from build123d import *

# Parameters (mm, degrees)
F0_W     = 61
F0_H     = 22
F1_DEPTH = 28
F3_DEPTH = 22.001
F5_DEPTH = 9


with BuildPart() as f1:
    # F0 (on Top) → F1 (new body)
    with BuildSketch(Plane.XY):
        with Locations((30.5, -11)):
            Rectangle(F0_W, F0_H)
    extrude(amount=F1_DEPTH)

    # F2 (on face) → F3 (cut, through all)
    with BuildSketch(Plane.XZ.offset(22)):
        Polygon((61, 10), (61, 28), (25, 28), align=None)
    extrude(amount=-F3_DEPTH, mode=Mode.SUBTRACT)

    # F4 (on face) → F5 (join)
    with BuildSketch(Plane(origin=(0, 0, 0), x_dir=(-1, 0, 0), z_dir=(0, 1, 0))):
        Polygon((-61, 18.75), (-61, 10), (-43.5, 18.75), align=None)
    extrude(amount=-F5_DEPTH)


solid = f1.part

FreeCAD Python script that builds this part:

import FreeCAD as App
import Part
import Sketcher

doc = App.newDocument("Part")
body = doc.addObject("PartDesign::Body", "Body")

sketch1 = doc.addObject("Sketcher::SketchObject", "Sketch")
body.addObject(sketch1)
sketch1.AttachmentSupport = (doc.XY_Plane, [""])
sketch1.MapMode = "FlatFace"
sketch1.addGeometry([
    Part.LineSegment(App.Vector(0, 0, 0), App.Vector(0, -22, 0)),
    Part.LineSegment(App.Vector(0, -22, 0), App.Vector(61, -22, 0)),
    Part.LineSegment(App.Vector(61, -22, 0), App.Vector(61, 0, 0)),
    Part.LineSegment(App.Vector(61, 0, 0), App.Vector(0, 0, 0)),
], False)
sketch1.addConstraint([
    Sketcher.Constraint("Coincident", 0, 2, 1, 1),
    Sketcher.Constraint("Coincident", 1, 2, 2, 1),
    Sketcher.Constraint("Coincident", 2, 2, 3, 1),
    Sketcher.Constraint("Coincident", 3, 2, 0, 1),
    Sketcher.Constraint("Vertical", 0),
    Sketcher.Constraint("Horizontal", 1),
    Sketcher.Constraint("Vertical", 2),
    Sketcher.Constraint("Horizontal", 3),
    Sketcher.Constraint("Coincident", 3, 2, -1, 1),
    Sketcher.Constraint("DistanceX", 1, 1, 1, 2, 61.0),
    Sketcher.Constraint("DistanceY", 0, 2, 0, 1, 22.0),
])
pad1 = doc.addObject("PartDesign::Pad", "Pad")
body.addObject(pad1)
pad1.Profile = sketch1
pad1.Length = 28

sketch2 = doc.addObject("Sketcher::SketchObject", "Sketch001")
body.addObject(sketch2)
sketch2.AttachmentSupport = (doc.XZ_Plane, [""])
sketch2.MapMode = "FlatFace"
sketch2.AttachmentOffset = App.Placement(App.Vector(0, 0, 22), App.Rotation())
sketch2.addGeometry([
    Part.LineSegment(App.Vector(61, 10, 0), App.Vector(61, 28, 0)),
    Part.LineSegment(App.Vector(61, 28, 0), App.Vector(25, 28, 0)),
    Part.LineSegment(App.Vector(25, 28, 0), App.Vector(61, 10, 0)),
], False)
sketch2.addConstraint([
    Sketcher.Constraint("Coincident", 0, 2, 1, 1),
    Sketcher.Constraint("Coincident", 1, 2, 2, 1),
    Sketcher.Constraint("Coincident", 2, 2, 0, 1),
    Sketcher.Constraint("Vertical", 0),
    Sketcher.Constraint("Horizontal", 1),
    Sketcher.Constraint("DistanceX", 1, 2, 1, 1, 36.0),
    Sketcher.Constraint("DistanceY", 0, 1, 0, 2, 18.0),
    Sketcher.Constraint("DistanceX", -1, 1, 0, 2, 61.0),
    Sketcher.Constraint("DistanceY", -1, 1, 0, 2, 28.0),
])
pocket1 = doc.addObject("PartDesign::Pocket", "Pocket")
body.addObject(pocket1)
pocket1.Profile = sketch2
pocket1.Type = "ThroughAll"

sketch3 = doc.addObject("Sketcher::SketchObject", "Sketch002")
body.addObject(sketch3)
sketch3.AttachmentSupport = (doc.XZ_Plane, [""])
sketch3.MapMode = "FlatFace"
sketch3.addGeometry([
    Part.LineSegment(App.Vector(61, 19, 0), App.Vector(61, 10, 0)),
    Part.LineSegment(App.Vector(61, 10, 0), App.Vector(44, 19, 0)),
    Part.LineSegment(App.Vector(44, 19, 0), App.Vector(61, 19, 0)),
], False)
sketch3.addConstraint([
    Sketcher.Constraint("Coincident", 0, 2, 1, 1),
    Sketcher.Constraint("Coincident", 1, 2, 2, 1),
    Sketcher.Constraint("Coincident", 2, 2, 0, 1),
    Sketcher.Constraint("Vertical", 0),
    Sketcher.Constraint("Horizontal", 2),
    Sketcher.Constraint("DistanceX", 2, 1, 2, 2, 17.5),
    Sketcher.Constraint("DistanceX", -1, 1, 0, 2, 61.0),
    Sketcher.Constraint("DistanceY", -1, 1, 0, 2, 10.0),
    Sketcher.Constraint("DistanceY", 0, 2, 0, 1, 8.75),
])
pad2 = doc.addObject("PartDesign::Pad", "Pad001")
body.addObject(pad2)
pad2.Profile = sketch3
pad2.Length = 9

doc.recompute()
